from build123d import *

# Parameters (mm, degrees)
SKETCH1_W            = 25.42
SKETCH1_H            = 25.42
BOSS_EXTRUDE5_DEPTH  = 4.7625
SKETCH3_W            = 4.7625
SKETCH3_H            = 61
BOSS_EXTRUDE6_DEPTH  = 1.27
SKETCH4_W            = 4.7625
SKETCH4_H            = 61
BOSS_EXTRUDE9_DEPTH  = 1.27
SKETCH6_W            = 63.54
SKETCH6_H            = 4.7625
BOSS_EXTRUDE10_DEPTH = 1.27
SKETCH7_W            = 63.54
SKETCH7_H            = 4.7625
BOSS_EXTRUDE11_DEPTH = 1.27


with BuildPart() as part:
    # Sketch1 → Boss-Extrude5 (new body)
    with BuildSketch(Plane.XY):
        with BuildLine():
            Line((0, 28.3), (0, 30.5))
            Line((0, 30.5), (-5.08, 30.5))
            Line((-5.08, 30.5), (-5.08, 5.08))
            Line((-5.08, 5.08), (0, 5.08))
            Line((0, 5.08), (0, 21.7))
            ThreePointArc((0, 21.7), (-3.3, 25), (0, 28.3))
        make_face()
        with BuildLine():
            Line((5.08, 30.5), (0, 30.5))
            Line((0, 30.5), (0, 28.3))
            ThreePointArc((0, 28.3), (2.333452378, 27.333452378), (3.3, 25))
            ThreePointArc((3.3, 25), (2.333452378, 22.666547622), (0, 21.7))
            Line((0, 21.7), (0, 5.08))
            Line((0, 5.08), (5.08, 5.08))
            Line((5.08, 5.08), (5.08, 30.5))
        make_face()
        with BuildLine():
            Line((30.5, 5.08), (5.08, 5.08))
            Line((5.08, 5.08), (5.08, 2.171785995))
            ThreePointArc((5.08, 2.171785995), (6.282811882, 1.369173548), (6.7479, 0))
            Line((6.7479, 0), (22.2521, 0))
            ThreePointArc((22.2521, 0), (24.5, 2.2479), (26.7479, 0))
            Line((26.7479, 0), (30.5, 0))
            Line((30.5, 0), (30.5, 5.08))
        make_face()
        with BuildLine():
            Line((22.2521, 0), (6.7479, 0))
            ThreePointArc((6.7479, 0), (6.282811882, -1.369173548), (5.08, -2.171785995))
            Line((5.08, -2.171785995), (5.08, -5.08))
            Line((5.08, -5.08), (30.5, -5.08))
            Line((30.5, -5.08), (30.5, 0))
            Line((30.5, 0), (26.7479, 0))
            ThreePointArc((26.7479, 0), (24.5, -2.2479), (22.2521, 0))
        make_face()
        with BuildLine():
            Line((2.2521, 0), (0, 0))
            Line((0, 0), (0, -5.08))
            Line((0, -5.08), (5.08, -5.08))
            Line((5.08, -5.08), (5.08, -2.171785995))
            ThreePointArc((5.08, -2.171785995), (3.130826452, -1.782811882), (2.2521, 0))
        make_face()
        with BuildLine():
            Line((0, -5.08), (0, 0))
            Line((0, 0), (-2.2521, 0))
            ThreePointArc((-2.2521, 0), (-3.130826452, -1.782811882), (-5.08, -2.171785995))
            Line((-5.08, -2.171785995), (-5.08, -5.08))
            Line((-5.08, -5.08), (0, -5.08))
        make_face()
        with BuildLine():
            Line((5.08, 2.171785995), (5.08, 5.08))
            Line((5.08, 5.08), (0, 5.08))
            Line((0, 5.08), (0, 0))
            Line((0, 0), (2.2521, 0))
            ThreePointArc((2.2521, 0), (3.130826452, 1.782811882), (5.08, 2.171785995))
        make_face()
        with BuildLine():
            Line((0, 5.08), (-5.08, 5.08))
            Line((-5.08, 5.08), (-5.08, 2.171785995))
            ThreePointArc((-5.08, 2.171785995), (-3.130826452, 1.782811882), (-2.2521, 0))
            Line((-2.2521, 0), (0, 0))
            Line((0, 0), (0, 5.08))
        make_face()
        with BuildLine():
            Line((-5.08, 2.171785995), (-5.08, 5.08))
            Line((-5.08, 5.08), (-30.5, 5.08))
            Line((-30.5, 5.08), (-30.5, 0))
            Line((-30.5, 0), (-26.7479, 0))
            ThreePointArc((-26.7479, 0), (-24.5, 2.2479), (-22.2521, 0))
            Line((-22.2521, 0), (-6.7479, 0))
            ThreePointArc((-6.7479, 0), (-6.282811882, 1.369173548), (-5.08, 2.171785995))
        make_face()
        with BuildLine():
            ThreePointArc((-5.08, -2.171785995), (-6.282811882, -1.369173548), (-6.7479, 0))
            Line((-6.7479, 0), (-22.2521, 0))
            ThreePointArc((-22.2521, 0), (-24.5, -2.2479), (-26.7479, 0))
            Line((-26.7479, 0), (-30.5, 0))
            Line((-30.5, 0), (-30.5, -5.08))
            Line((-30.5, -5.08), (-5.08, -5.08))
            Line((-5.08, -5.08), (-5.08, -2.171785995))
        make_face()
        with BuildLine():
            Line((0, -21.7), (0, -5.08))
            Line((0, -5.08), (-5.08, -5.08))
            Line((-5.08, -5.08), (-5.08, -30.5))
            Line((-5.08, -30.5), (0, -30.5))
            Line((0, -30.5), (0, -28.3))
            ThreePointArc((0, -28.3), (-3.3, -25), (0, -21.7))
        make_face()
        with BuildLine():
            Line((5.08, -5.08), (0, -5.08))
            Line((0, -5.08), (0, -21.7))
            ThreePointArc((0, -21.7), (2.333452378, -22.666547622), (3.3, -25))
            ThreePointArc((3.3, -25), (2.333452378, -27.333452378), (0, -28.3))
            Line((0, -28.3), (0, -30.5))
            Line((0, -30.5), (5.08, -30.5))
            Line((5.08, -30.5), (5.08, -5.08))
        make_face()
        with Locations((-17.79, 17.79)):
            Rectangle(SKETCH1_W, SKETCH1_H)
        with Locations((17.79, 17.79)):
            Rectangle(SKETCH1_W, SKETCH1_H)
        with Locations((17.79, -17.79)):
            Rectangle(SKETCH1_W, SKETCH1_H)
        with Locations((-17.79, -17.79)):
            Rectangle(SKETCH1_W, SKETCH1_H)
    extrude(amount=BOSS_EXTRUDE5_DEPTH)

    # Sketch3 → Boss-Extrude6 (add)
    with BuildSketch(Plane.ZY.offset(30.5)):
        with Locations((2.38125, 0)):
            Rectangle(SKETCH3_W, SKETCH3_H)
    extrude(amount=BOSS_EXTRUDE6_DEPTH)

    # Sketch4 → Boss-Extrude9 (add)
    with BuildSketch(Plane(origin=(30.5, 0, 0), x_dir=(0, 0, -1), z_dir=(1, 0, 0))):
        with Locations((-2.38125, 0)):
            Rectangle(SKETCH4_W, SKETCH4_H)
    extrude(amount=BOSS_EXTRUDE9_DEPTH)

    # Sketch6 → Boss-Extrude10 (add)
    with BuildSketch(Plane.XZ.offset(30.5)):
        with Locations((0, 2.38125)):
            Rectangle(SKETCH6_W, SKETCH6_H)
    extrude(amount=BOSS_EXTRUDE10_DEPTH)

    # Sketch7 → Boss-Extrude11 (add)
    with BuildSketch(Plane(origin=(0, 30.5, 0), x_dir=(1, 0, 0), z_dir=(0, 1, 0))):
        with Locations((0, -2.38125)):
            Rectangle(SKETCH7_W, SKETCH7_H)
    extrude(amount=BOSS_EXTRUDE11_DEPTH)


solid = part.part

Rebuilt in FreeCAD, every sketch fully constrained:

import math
import FreeCAD as App
import Part
import Sketcher
Q = App.Units.Quantity

doc = App.newDocument("Part")
body = doc.addObject("PartDesign::Body", "Body")

# Sketch on XY plane
sketch1 = body.newObject("Sketcher::SketchObject", "Sketch")
sketch1.AttachmentSupport = (doc.getObject("XY_Plane"), [""])
sketch1.MapMode = "FlatFace"
sketch1.addGeometry(Part.LineSegment(App.Vector(30.5, -30.5, 0), App.Vector(30.5, 30.5, 0)), False)
sketch1.addGeometry(Part.LineSegment(App.Vector(30.5, 30.5, 0), App.Vector(-30.5, 30.5, 0)), False)
sketch1.addGeometry(Part.LineSegment(App.Vector(-30.5, 30.5, 0), App.Vector(-30.5, -30.5, 0)), False)
sketch1.addGeometry(Part.LineSegment(App.Vector(-30.5, -30.5, 0), App.Vector(30.5, -30.5, 0)), False)
sketch1.addGeometry(Part.ArcOfCircle(Part.Circle(App.Vector(0, -25, 0), App.Vector(0, 0, 1), 3.3), math.radians(90), math.radians(270)), False)
sketch1.addGeometry(Part.ArcOfCircle(Part.Circle(App.Vector(0, -25, 0), App.Vector(0, 0, 1), 3.3), math.radians(0), math.radians(90)), False)
sketch1.addGeometry(Part.ArcOfCircle(Part.Circle(App.Vector(0, -25, 0), App.Vector(0, 0, 1), 3.3), math.radians(-90), math.radians(0)), False)
sketch1.addGeometry(Part.Circle(App.Vector(-24.5, 0, 0), App.Vector(0, 0, 1), 2.2479), False)
sketch1.addGeometry(Part.ArcOfCircle(Part.Circle(App.Vector(-4.5, 0, 0), App.Vector(0, 0, 1), 2.2479), math.radians(104.952525), math.radians(180)), False)
sketch1.addGeometry(Part.ArcOfCircle(Part.Circle(App.Vector(-4.5, 0, 0), App.Vector(0, 0, 1), 2.2479), math.radians(0), math.radians(104.952525)), False)
sketch1.addGeometry(Part.ArcOfCircle(Part.Circle(App.Vector(-4.5, 0, 0), App.Vector(0, 0, 1), 2.2479), math.radians(-104.952525), math.radians(0)), False)
sketch1.addGeometry(Part.ArcOfCircle(Part.Circle(App.Vector(-4.5, 0, 0), App.Vector(0, 0, 1), 2.2479), math.radians(180), math.radians(255.047475)), False)
sketch1.addGeometry(Part.ArcOfCircle(Part.Circle(App.Vector(0, 25, 0), App.Vector(0, 0, 1), 3.3), math.radians(90), math.radians(270)), False)
sketch1.addGeometry(Part.ArcOfCircle(Part.Circle(App.Vector(0, 25, 0), App.Vector(0, 0, 1), 3.3), math.radians(0), math.radians(90)), False)
sketch1.addGeometry(Part.ArcOfCircle(Part.Circle(App.Vector(0, 25, 0), App.Vector(0, 0, 1), 3.3), math.radians(-90), math.radians(0)), False)
sketch1.addGeometry(Part.ArcOfCircle(Part.Circle(App.Vector(4.5, 0, 0), App.Vector(0, 0, 1), 2.2479), math.radians(75.047475), math.radians(180)), False)
sketch1.addGeometry(Part.ArcOfCircle(Part.Circle(App.Vector(4.5, 0, 0), App.Vector(0, 0, 1), 2.2479), math.radians(0), math.radians(75.047475)), False)
sketch1.addGeometry(Part.ArcOfCircle(Part.Circle(App.Vector(4.5, 0, 0), App.Vector(0, 0, 1), 2.2479), math.radians(-75.047475), math.radians(0)), False)
sketch1.addGeometry(Part.ArcOfCircle(Part.Circle(App.Vector(4.5, 0, 0), App.Vector(0, 0, 1), 2.2479), math.radians(180), math.radians(284.952525)), False)
sketch1.addGeometry(Part.Circle(App.Vector(24.5, 0, 0), App.Vector(0, 0, 1), 2.2479), False)
sketch1.addConstraint(Sketcher.Constraint("Coincident", 0, 2, 1, 1))
sketch1.addConstraint(Sketcher.Constraint("Coincident", 1, 2, 2, 1))
sketch1.addConstraint(Sketcher.Constraint("Coincident", 2, 2, 3, 1))
sketch1.addConstraint(Sketcher.Constraint("Coincident", 3, 2, 0, 1))
sketch1.addConstraint(Sketcher.Constraint("Tangent", 4, 1, 5, 2))
sketch1.addConstraint(Sketcher.Constraint("Tangent", 5, 1, 6, 2))
sketch1.addConstraint(Sketcher.Constraint("Tangent", 6, 1, 4, 2))
sketch1.addConstraint(Sketcher.Constraint("Tangent", 8, 1, 9, 2))
sketch1.addConstraint(Sketcher.Constraint("Tangent", 9, 1, 10, 2))
sketch1.addConstraint(Sketcher.Constraint("Tangent", 10, 1, 11, 2))
sketch1.addConstraint(Sketcher.Constraint("Tangent", 11, 1, 8, 2))
sketch1.addConstraint(Sketcher.Constraint("Tangent", 12, 1, 13, 2))
sketch1.addConstraint(Sketcher.Constraint("Tangent", 13, 1, 14, 2))
sketch1.addConstraint(Sketcher.Constraint("Tangent", 14, 1, 12, 2))
sketch1.addConstraint(Sketcher.Constraint("Tangent", 15, 1, 16, 2))
sketch1.addConstraint(Sketcher.Constraint("Tangent", 16, 1, 17, 2))
sketch1.addConstraint(Sketcher.Constraint("Tangent", 17, 1, 18, 2))
sketch1.addConstraint(Sketcher.Constraint("Tangent", 18, 1, 15, 2))
sketch1.addConstraint(Sketcher.Constraint("Vertical", 0))
sketch1.addConstraint(Sketcher.Constraint("Horizontal", 1))
sketch1.addConstraint(Sketcher.Constraint("Vertical", 2))
sketch1.addConstraint(Sketcher.Constraint("Horizontal", 3))
sketch1.addConstraint(Sketcher.Constraint("Equal", 7, 8))
sketch1.addConstraint(Sketcher.Constraint("Equal", 8, 9))
sketch1.addConstraint(Sketcher.Constraint("Equal", 6, 12))
sketch1.addConstraint(Sketcher.Constraint("Equal", 11, 15))
sketch1.addConstraint(Sketcher.Constraint("Equal", 15, 16))
sketch1.addConstraint(Sketcher.Constraint("Equal", 18, 19))
sketch1.addConstraint(Sketcher.Constraint("Symmetric", 4, 3, 12, 3, -1, 1))
sketch1.addConstraint(Sketcher.Constraint("Symmetric", 8, 3, 15, 3, -1, 1))
sketch1.addConstraint(Sketcher.Constraint("Symmetric", 7, 3, 19, 3, -1, 1))
sketch1.addConstraint(Sketcher.Constraint("Symmetric", 0, 2, 2, 2, -1, 1))
sketch1.addConstraint(Sketcher.Constraint("Symmetric", 8, 1, 15, 1, -2))
sketch1.addConstraint(Sketcher.Constraint("Symmetric", 5, 1, 13, 1, -1))
sketch1.addConstraint(Sketcher.Constraint("PointOnObject", 7, 3, -1))
sketch1.addConstraint(Sketcher.Constraint("PointOnObject", 4, 1, -2))
sketch1.addConstraint(Sketcher.Constraint("PointOnObject", 6, 1, -2))
sketch1.addConstraint(Sketcher.Constraint("PointOnObject", 9, 1, -1))
sketch1.addConstraint(Sketcher.Constraint("PointOnObject", 11, 1, -1))
sketch1.addConstraint(Sketcher.Constraint("PointOnObject", 12, 1, -2))
sketch1.addConstraint(Sketcher.Constraint("PointOnObject", 14, 1, -2))
sketch1.addConstraint(Sketcher.Constraint("PointOnObject", 16, 1, -1))
sketch1.addConstraint(Sketcher.Constraint("PointOnObject", 18, 1, -1))
sketch1.addConstraint(Sketcher.Constraint("Horizontal", 6, 3, 5, 1))
sketch1.addConstraint(Sketcher.Constraint("Horizontal", 10, 1, 17, 1))
sketch1.addConstraint(Sketcher.Constraint("Vertical", 8, 1, 10, 1))
sketch1.addConstraint(Sketcher.Constraint("Equal", 3, 0))
sketch1.addConstraint(Sketcher.Constraint("Diameter", 7, Q("0.177 in")))
sketch1.addConstraint(Sketcher.Constraint("DistanceX", 8, 1, -1, 1, Q("0.2 in")))
sketch1.addConstraint(Sketcher.Constraint("Radius", 4, 3.3))
sketch1.addConstraint(Sketcher.Constraint("DistanceX", 1, 2, 1, 1, 61.0))
sketch1.addConstraint(Sketcher.Constraint("DistanceY", 4, 3, -1, 1, 25.0))
sketch1.addConstraint(Sketcher.Constraint("DistanceX", 7, 3, -1, 1, 24.5))
sketch1.addConstraint(Sketcher.Constraint("DistanceX", 8, 3, -1, 1, 4.5))
pad1 = body.newObject("PartDesign::Pad", "Pad")
pad1.Profile = sketch1
pad1.Length = Q("0.1875 in")

# Sketch on YZ plane
sketch2 = body.newObject("Sketcher::SketchObject", "Sketch001")
sketch2.AttachmentSupport = (doc.getObject("YZ_Plane"), [""])
sketch2.MapMode = "FlatFace"
sketch2.AttachmentOffset = App.Placement(App.Vector(0, 0, -30.5), App.Rotation())
sketch2.addGeometry(Part.LineSegment(App.Vector(30.5, 0, 0), App.Vector(-30.5, 0, 0)), False)
sketch2.addGeometry(Part.LineSegment(App.Vector(-30.5, 0, 0), App.Vector(-30.5, 4.7625, 0)), False)
sketch2.addGeometry(Part.LineSegment(App.Vector(-30.5, 4.7625, 0), App.Vector(30.5, 4.7625, 0)), False)
sketch2.addGeometry(Part.LineSegment(App.Vector(30.5, 4.7625, 0), App.Vector(30.5, 0, 0)), False)
sketch2.addConstraint(Sketcher.Constraint("Coincident", 0, 2, 1, 1))
sketch2.addConstraint(Sketcher.Constraint("Coincident", 1, 2, 2, 1))
sketch2.addConstraint(Sketcher.Constraint("Coincident", 2, 2, 3, 1))
sketch2.addConstraint(Sketcher.Constraint("Coincident", 3, 2, 0, 1))
sketch2.addConstraint(Sketcher.Constraint("Horizontal", 0))
sketch2.addConstraint(Sketcher.Constraint("Vertical", 1))
sketch2.addConstraint(Sketcher.Constraint("Horizontal", 2))
sketch2.addConstraint(Sketcher.Constraint("Vertical", 3))
sketch2.addConstraint(Sketcher.Constraint("Symmetric", 0, 2, 3, 2, -1, 1))
sketch2.addConstraint(Sketcher.Constraint("DistanceY", 1, 1, 1, 2, Q("0.1875 in")))
sketch2.addConstraint(Sketcher.Constraint("DistanceX", 0, 2, 0, 1, 61.0))
pad2 = body.newObject("PartDesign::Pad", "Pad001")
pad2.Profile = sketch2
pad2.Length = Q("0.05 in")
pad2.Reversed = True

# Sketch on YZ plane
sketch3 = body.newObject("Sketcher::SketchObject", "Sketch002")
sketch3.AttachmentSupport = (doc.getObject("YZ_Plane"), [""])
sketch3.MapMode = "FlatFace"
sketch3.AttachmentOffset = App.Placement(App.Vector(0, 0, 30.5), App.Rotation())
sketch3.addGeometry(Part.LineSegment(App.Vector(30.5, 4.7625, 0), App.Vector(-30.5, 4.7625, 0)), False)
sketch3.addGeometry(Part.LineSegment(App.Vector(-30.5, 4.7625, 0), App.Vector(-30.5, 0, 0)), False)
sketch3.addGeometry(Part.LineSegment(App.Vector(-30.5, 0, 0), App.Vector(30.5, 0, 0)), False)
sketch3.addGeometry(Part.LineSegment(App.Vector(30.5, 0, 0), App.Vector(30.5, 4.7625, 0)), False)
sketch3.addConstraint(Sketcher.Constraint("Coincident", 0, 2, 1, 1))
sketch3.addConstraint(Sketcher.Constraint("Coincident", 1, 2, 2, 1))
sketch3.addConstraint(Sketcher.Constraint("Coincident", 2, 2, 3, 1))
sketch3.addConstraint(Sketcher.Constraint("Coincident", 3, 2, 0, 1))
sketch3.addConstraint(Sketcher.Constraint("Horizontal", 0))
sketch3.addConstraint(Sketcher.Constraint("Vertical", 1))
sketch3.addConstraint(Sketcher.Constraint("Horizontal", 2))
sketch3.addConstraint(Sketcher.Constraint("Vertical", 3))
sketch3.addConstraint(Sketcher.Constraint("Symmetric", 1, 2, 2, 2, -1, 1))
sketch3.addConstraint(Sketcher.Constraint("DistanceY", 1, 2, 1, 1, Q("0.1875 in")))
sketch3.addConstraint(Sketcher.Constraint("DistanceX", 0, 2, 0, 1, 61.0))
pad3 = body.newObject("PartDesign::Pad", "Pad002")
pad3.Profile = sketch3
pad3.Length = Q("0.05 in")

# Sketch on XZ plane
sketch4 = body.newObject("Sketcher::SketchObject", "Sketch003")
sketch4.AttachmentSupport = (doc.getObject("XZ_Plane"), [""])
sketch4.MapMode = "FlatFace"
sketch4.AttachmentOffset = App.Placement(App.Vector(0, 0, 30.5), App.Rotation())
sketch4.addGeometry(Part.LineSegment(App.Vector(-31.77, 4.7625, 0), App.Vector(-31.77, 0, 0)), False)
sketch4.addGeometry(Part.LineSegment(App.Vector(-31.77, 0, 0), App.Vector(31.77, 0, 0)), False)
sketch4.addGeometry(Part.LineSegment(App.Vector(31.77, 0, 0), App.Vector(31.77, 4.7625, 0)), False)
sketch4.addGeometry(Part.LineSegment(App.Vector(31.77, 4.7625, 0), App.Vector(-31.77, 4.7625, 0)), False)
sketch4.addConstraint(Sketcher.Constraint("Coincident", 0, 2, 1, 1))
sketch4.addConstraint(Sketcher.Constraint("Coincident", 1, 2, 2, 1))
sketch4.addConstraint(Sketcher.Constraint("Coincident", 2, 2, 3, 1))
sketch4.addConstraint(Sketcher.Constraint("Coincident", 3, 2, 0, 1))
sketch4.addConstraint(Sketcher.Constraint("Vertical", 0))
sketch4.addConstraint(Sketcher.Constraint("Horizontal", 1))
sketch4.addConstraint(Sketcher.Constraint("Vertical", 2))
sketch4.addConstraint(Sketcher.Constraint("Horizontal", 3))
sketch4.addConstraint(Sketcher.Constraint("Symmetric", 0, 2, 1, 2, -1, 1))
sketch4.addConstraint(Sketcher.Constraint("DistanceY", 0, 2, 0, 1, Q("0.1875 in")))
sketch4.addConstraint(Sketcher.Constraint("DistanceX", 1, 1, 1, 2, 63.54))
pad4 = body.newObject("PartDesign::Pad", "Pad003")
pad4.Profile = sketch4
pad4.Length = Q("0.05 in")

# Sketch on XZ plane
sketch5 = body.newObject("Sketcher::SketchObject", "Sketch004")
sketch5.AttachmentSupport = (doc.getObject("XZ_Plane"), [""])
sketch5.MapMode = "FlatFace"
sketch5.AttachmentOffset = App.Placement(App.Vector(0, 0, -30.5), App.Rotation())
sketch5.addGeometry(Part.LineSegment(App.Vector(-31.77, 0, 0), App.Vector(-31.77, 4.7625, 0)), False)
sketch5.addGeometry(Part.LineSegment(App.Vector(-31.77, 4.7625, 0), App.Vector(31.77, 4.7625, 0)), False)
sketch5.addGeometry(Part.LineSegment(App.Vector(31.77, 4.7625, 0), App.Vector(31.77, 0, 0)), False)
sketch5.addGeometry(Part.LineSegment(App.Vector(31.77, 0, 0), App.Vector(-31.77, 0, 0)), False)
sketch5.addConstraint(Sketcher.Constraint("Coincident", 0, 2, 1, 1))
sketch5.addConstraint(Sketcher.Constraint("Coincident", 1, 2, 2, 1))
sketch5.addConstraint(Sketcher.Constraint("Coincident", 2, 2, 3, 1))
sketch5.addConstraint(Sketcher.Constraint("Coincident", 3, 2, 0, 1))
sketch5.addConstraint(Sketcher.Constraint("Vertical", 0))
sketch5.addConstraint(Sketcher.Constraint("Horizontal", 1))
sketch5.addConstraint(Sketcher.Constraint("Vertical", 2))
sketch5.addConstraint(Sketcher.Constraint("Horizontal", 3))
sketch5.addConstraint(Sketcher.Constraint("Symmetric", 2, 2, 3, 2, -1, 1))
sketch5.addConstraint(Sketcher.Constraint("DistanceY", 0, 1, 0, 2, Q("0.1875 in")))
sketch5.addConstraint(Sketcher.Constraint("DistanceX", 1, 1, 1, 2, 63.54))
pad5 = body.newObject("PartDesign::Pad", "Pad004")
pad5.Profile = sketch5
pad5.Length = Q("0.05 in")
pad5.Reversed = True

doc.recompute()
